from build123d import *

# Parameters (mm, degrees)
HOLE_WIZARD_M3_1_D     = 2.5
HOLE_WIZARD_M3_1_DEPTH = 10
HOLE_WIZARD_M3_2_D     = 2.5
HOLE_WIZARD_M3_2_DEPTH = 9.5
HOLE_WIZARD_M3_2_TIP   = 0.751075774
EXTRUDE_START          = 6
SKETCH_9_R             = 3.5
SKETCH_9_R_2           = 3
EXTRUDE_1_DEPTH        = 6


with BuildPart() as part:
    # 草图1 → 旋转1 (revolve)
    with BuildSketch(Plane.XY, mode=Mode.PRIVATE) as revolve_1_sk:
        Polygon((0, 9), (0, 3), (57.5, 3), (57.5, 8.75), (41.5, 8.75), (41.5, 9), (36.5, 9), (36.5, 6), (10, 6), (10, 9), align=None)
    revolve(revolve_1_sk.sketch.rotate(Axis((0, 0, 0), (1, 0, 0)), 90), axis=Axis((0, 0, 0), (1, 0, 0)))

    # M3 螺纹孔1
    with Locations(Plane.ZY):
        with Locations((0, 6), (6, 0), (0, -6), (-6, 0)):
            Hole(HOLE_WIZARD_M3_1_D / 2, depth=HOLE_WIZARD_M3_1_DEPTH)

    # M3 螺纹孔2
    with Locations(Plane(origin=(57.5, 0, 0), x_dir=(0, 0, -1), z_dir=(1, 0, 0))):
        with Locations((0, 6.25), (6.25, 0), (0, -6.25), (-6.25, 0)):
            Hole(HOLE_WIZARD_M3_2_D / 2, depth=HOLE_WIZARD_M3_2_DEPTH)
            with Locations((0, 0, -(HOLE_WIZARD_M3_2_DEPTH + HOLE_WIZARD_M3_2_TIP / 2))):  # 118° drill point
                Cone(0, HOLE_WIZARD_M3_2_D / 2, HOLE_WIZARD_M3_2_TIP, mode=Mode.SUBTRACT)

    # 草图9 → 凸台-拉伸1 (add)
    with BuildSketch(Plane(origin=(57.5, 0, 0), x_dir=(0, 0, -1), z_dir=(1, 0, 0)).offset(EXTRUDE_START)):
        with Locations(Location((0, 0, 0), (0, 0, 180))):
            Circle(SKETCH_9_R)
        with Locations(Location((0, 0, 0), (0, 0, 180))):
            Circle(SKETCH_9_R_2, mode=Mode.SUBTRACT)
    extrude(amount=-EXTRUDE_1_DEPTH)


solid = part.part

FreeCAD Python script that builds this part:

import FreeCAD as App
import Part
import Sketcher

V = App.Vector

doc = App.newDocument("Part")
body = doc.addObject("PartDesign::Body", "Body")

# Sketch on XY plane
sketch1 = body.newObject("Sketcher::SketchObject", "Sketch")
sketch1.AttachmentSupport = (doc.getObject("XY_Plane"), [""])
sketch1.MapMode = "FlatFace"
sketch1.addGeometry(Part.LineSegment(V(0, 9, 0), V(0, 3, 0)), False)
sketch1.addGeometry(Part.LineSegment(V(0, 3, 0), V(57.5, 3, 0)), False)
sketch1.addGeometry(Part.LineSegment(V(57.5, 3, 0), V(57.5, 8.75, 0)), False)
sketch1.addGeometry(Part.LineSegment(V(57.5, 8.75, 0), V(41.5, 8.75, 0)), False)
sketch1.addGeometry(Part.LineSegment(V(41.5, 8.75, 0), V(41.5, 9, 0)), False)
sketch1.addGeometry(Part.LineSegment(V(41.5, 9, 0), V(36.5, 9, 0)), False)
sketch1.addGeometry(Part.LineSegment(V(36.5, 9, 0), V(36.5, 6, 0)), False)
sketch1.addGeometry(Part.LineSegment(V(36.5, 6, 0), V(10, 6, 0)), False)
sketch1.addGeometry(Part.LineSegment(V(10, 6, 0), V(10, 9, 0)), False)
sketch1.addGeometry(Part.LineSegment(V(10, 9, 0), V(0, 9, 0)), False)
sketch1.addConstraint(Sketcher.Constraint("Coincident", 0, 2, 1, 1))
sketch1.addConstraint(Sketcher.Constraint("Coincident", 1, 2, 2, 1))
sketch1.addConstraint(Sketcher.Constraint("Coincident", 2, 2, 3, 1))
sketch1.addConstraint(Sketcher.Constraint("Coincident", 3, 2, 4, 1))
sketch1.addConstraint(Sketcher.Constraint("Coincident", 4, 2, 5, 1))
sketch1.addConstraint(Sketcher.Constraint("Coincident", 5, 2, 6, 1))
sketch1.addConstraint(Sketcher.Constraint("Coincident", 6, 2, 7, 1))
sketch1.addConstraint(Sketcher.Constraint("Coincident", 7, 2, 8, 1))
sketch1.addConstraint(Sketcher.Constraint("Coincident", 8, 2, 9, 1))
sketch1.addConstraint(Sketcher.Constraint("Coincident", 9, 2, 0, 1))
sketch1.addConstraint(Sketcher.Constraint("Vertical", 0))
sketch1.addConstraint(Sketcher.Constraint("Horizontal", 1))
sketch1.addConstraint(Sketcher.Constraint("Vertical", 2))
sketch1.addConstraint(Sketcher.Constraint("Horizontal", 3))
sketch1.addConstraint(Sketcher.Constraint("Vertical", 4))
sketch1.addConstraint(Sketcher.Constraint("Horizontal", 5))
sketch1.addConstraint(Sketcher.Constraint("Vertical", 6))
sketch1.addConstraint(Sketcher.Constraint("Horizontal", 7))
sketch1.addConstraint(Sketcher.Constraint("Vertical", 8))
sketch1.addConstraint(Sketcher.Constraint("Horizontal", 9))
sketch1.addConstraint(Sketcher.Constraint("PointOnObject", 0, 2, -2))
sketch1.addConstraint(Sketcher.Constraint("Horizontal", 5, 2, 8, 2))
sketch1.addConstraint(Sketcher.Constraint("DistanceX", 3, 2, 3, 1, 16.0))
sketch1.addConstraint(Sketcher.Constraint("DistanceX", 5, 2, 5, 1, 5.0))
sketch1.addConstraint(Sketcher.Constraint("DistanceX", 9, 2, 9, 1, 10.0))
sketch1.addConstraint(Sketcher.Constraint("DistanceY", 0, 2, 0, 1, 6.0))
sketch1.addConstraint(Sketcher.Constraint("DistanceY", 6, 2, 6, 1, 3.0))
sketch1.addConstraint(Sketcher.Constraint("DistanceX", 1, 1, 1, 2, 57.5))
sketch1.addConstraint(Sketcher.Constraint("DistanceY", -1, 1, 0, 2, 3.0))
sketch1.addConstraint(Sketcher.Constraint("DistanceY", 2, 1, 2, 2, 5.75))
revolution = body.newObject("PartDesign::Revolution", "Revolution")
revolution.Profile = sketch1
revolution.ReferenceAxis = (sketch1, ["H_Axis"])
revolution.Angle = 360

# Sketch on YZ plane
sketch2 = body.newObject("Sketcher::SketchObject", "Sketch001")
sketch2.AttachmentSupport = (doc.getObject("YZ_Plane"), [""])
sketch2.MapMode = "FlatFace"
sketch2.addGeometry(Part.Circle(V(6, 0, 0), V(0, 0, 1), 1.25), False)
sketch2.addGeometry(Part.Circle(V(0, 6, 0), V(0, 0, 1), 1.25), False)
sketch2.addGeometry(Part.Circle(V(-6, 0, 0), V(0, 0, 1), 1.25), False)
sketch2.addGeometry(Part.Circle(V(0, -6, 0), V(0, 0, 1), 1.25), False)
sketch2.addConstraint(Sketcher.Constraint("Equal", 0, 1))
sketch2.addConstraint(Sketcher.Constraint("Equal", 1, 2))
sketch2.addConstraint(Sketcher.Constraint("Equal", 2, 3))
sketch2.addConstraint(Sketcher.Constraint("Symmetric", 0, 3, 2, 3, -1, 1))
sketch2.addConstraint(Sketcher.Constraint("Symmetric", 1, 3, 3, 3, -1, 1))
sketch2.addConstraint(Sketcher.Constraint("PointOnObject", 0, 3, -1))
sketch2.addConstraint(Sketcher.Constraint("PointOnObject", 1, 3, -2))
sketch2.addConstraint(Sketcher.Constraint("Diameter", 0, 2.5))
sketch2.addConstraint(Sketcher.Constraint("DistanceX", -1, 1, 0, 3, 6.0))
sketch2.addConstraint(Sketcher.Constraint("DistanceY", -1, 1, 1, 3, 6.0))
doc.recompute()
hole = body.newObject("PartDesign::Hole", "Hole")
hole.Profile = sketch2
hole.ThreadType = "None"
hole.Diameter = 2.5
hole.DepthType = "Dimension"
hole.Depth = 10
hole.DrillPoint = "Flat"
hole.Reversed = True

# Sketch on YZ plane
sketch3 = body.newObject("Sketcher::SketchObject", "Sketch002")
sketch3.AttachmentSupport = (doc.getObject("YZ_Plane"), [""])
sketch3.MapMode = "FlatFace"
sketch3.AttachmentOffset = App.Placement(V(0, 0, 57.5), App.Rotation())
sketch3.addGeometry(Part.Circle(V(6.25, 0, 0), V(0, 0, 1), 1.25), False)
sketch3.addGeometry(Part.Circle(V(0, -6.25, 0), V(0, 0, 1), 1.25), False)
sketch3.addGeometry(Part.Circle(V(-6.25, 0, 0), V(0, 0, 1), 1.25), False)
sketch3.addGeometry(Part.Circle(V(0, 6.25, 0), V(0, 0, 1), 1.25), False)
sketch3.addConstraint(Sketcher.Constraint("Equal", 0, 1))
sketch3.addConstraint(Sketcher.Constraint("Equal", 1, 2))
sketch3.addConstraint(Sketcher.Constraint("Equal", 2, 3))
sketch3.addConstraint(Sketcher.Constraint("Symmetric", 0, 3, 2, 3, -1, 1))
sketch3.addConstraint(Sketcher.Constraint("Symmetric", 1, 3, 3, 3, -1, 1))
sketch3.addConstraint(Sketcher.Constraint("PointOnObject", 0, 3, -1))
sketch3.addConstraint(Sketcher.Constraint("PointOnObject", 1, 3, -2))
sketch3.addConstraint(Sketcher.Constraint("Diameter", 0, 2.5))
sketch3.addConstraint(Sketcher.Constraint("DistanceX", 2, 3, 0, 3, 12.5))
sketch3.addConstraint(Sketcher.Constraint("DistanceY", 1, 3, 3, 3, 12.5))
doc.recompute()
hole2 = body.newObject("PartDesign::Hole", "Hole001")
hole2.Profile = sketch3
hole2.ThreadType = "None"
hole2.Diameter = 2.5
hole2.DepthType = "Dimension"
hole2.Depth = 9.5
hole2.DrillPoint = "Angled"
hole2.DrillPointAngle = 118

# Sketch on YZ plane
sketch4 = body.newObject("Sketcher::SketchObject", "Sketch003")
sketch4.AttachmentSupport = (doc.getObject("YZ_Plane"), [""])
sketch4.MapMode = "FlatFace"
sketch4.AttachmentOffset = App.Placement(V(0, 0, 63.5), App.Rotation())
sketch4.addGeometry(Part.Circle(V(0, 0, 0), V(0, 0, 1), 3.5), False)
sketch4.addGeometry(Part.Circle(V(0, 0, 0), V(0, 0, 1), 3), False)
sketch4.addConstraint(Sketcher.Constraint("Coincident", 0, 3, -1, 1))
sketch4.addConstraint(Sketcher.Constraint("Coincident", 1, 3, -1, 1))
sketch4.addConstraint(Sketcher.Constraint("Diameter", 0, 7.0))
sketch4.addConstraint(Sketcher.Constraint("Diameter", 1, 6.0))
pad1 = body.newObject("PartDesign::Pad", "Pad")
pad1.Profile = sketch4
pad1.Length = 6
pad1.Reversed = True

doc.recompute()
